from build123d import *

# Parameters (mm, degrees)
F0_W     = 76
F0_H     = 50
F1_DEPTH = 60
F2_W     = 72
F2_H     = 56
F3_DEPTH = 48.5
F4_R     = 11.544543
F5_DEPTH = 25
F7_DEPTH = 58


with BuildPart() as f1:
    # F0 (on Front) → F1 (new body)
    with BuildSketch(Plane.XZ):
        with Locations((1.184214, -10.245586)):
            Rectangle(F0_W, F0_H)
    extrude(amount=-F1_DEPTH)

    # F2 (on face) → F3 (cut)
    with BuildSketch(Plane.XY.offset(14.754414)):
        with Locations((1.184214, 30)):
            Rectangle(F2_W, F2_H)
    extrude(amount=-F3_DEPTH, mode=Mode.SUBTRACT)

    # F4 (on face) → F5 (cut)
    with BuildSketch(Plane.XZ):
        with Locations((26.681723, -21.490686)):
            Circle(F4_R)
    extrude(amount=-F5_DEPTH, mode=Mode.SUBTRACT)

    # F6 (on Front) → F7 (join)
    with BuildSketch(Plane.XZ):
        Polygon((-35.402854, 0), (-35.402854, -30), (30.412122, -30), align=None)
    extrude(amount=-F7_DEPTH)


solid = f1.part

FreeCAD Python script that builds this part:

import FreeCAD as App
import Part
import Sketcher
from FreeCAD import Vector


def add_polygon(sketch, points):
    """Adds a closed chain of lines whose ends are joined by coincident constraints."""
    first, n = sketch.GeometryCount, len(points)
    for a, b in zip(points, points[1:] + points[:1]):
        sketch.addGeometry(Part.LineSegment(App.Vector(*a, 0), App.Vector(*b, 0)), False)
    for i in range(n):
        sketch.addConstraint(Sketcher.Constraint("Coincident", first + i, 2, first + (i + 1) % n, 1))

doc = App.newDocument("Part")
params = doc.addObject("Spreadsheet::Sheet", "Params")
for row, (alias, value) in enumerate([
    ("sketch1_width", "76 mm"),
    ("sketch1_height", "50 mm"),
    ("pad1_length", "60 mm"),
    ("sketch2_width", "72 mm"),
    ("sketch2_height", "56 mm"),
    ("pocket1_length", "48.5 mm"),
    ("pocket2_length", "25 mm"),
    ("sketch4_height", "30 mm"),
    ("pad2_length", "58 mm"),
], start=1):
    params.set(f"A{row}", alias)
    params.set(f"B{row}", "=" + value)
    params.setAlias(f"B{row}", alias)

body = doc.addObject("PartDesign::Body", "Body")

# Sketch on XZ plane
sketch1 = body.newObject("Sketcher::SketchObject", "Sketch")
sketch1.AttachmentSupport = (doc.getObject("XZ_Plane"), [""])
sketch1.MapMode = "FlatFace"
add_polygon(sketch1, [(-36.815786, 14.754414), (-36.815786, -35.245586), (39.184214, -35.245586), (39.184214, 14.754414)])  # lines 0-3
sketch1.addConstraint(Sketcher.Constraint("Vertical", 0))
sketch1.addConstraint(Sketcher.Constraint("Horizontal", 1))
sketch1.addConstraint(Sketcher.Constraint("Vertical", 2))
sketch1.addConstraint(Sketcher.Constraint("Horizontal", 3))
sketch1.addConstraint(Sketcher.Constraint("DistanceX", 1, 1, 1, 2, 76.0))
sketch1.addConstraint(Sketcher.Constraint("DistanceY", 0, 2, 0, 1, 50.0))
sketch1.addConstraint(Sketcher.Constraint("DistanceX", 0, 2, -1, 1, 36.815786))
sketch1.addConstraint(Sketcher.Constraint("DistanceY", 0, 2, -1, 1, 35.245586))
sketch1.setExpression("Constraints[8]", "Params.sketch1_width")
sketch1.setExpression("Constraints[9]", "Params.sketch1_height")
pad1 = body.newObject("PartDesign::Pad", "Pad")
pad1.Profile = sketch1
pad1.setExpression("Length", "Params.pad1_length")
pad1.Reversed = True

# Sketch on XY plane
sketch2 = body.newObject("Sketcher::SketchObject", "Sketch001")
sketch2.AttachmentSupport = (doc.getObject("XY_Plane"), [""])
sketch2.MapMode = "FlatFace"
sketch2.AttachmentOffset = App.Placement(Vector(0, 0, 14.754414), App.Rotation())
add_polygon(sketch2, [(-34.815786, 58), (-34.815786, 2), (37.184214, 2), (37.184214, 58)])  # lines 0-3
sketch2.addConstraint(Sketcher.Constraint("Vertical", 0))
sketch2.addConstraint(Sketcher.Constraint("Horizontal", 1))
sketch2.addConstraint(Sketcher.Constraint("Vertical", 2))
sketch2.addConstraint(Sketcher.Constraint("Horizontal", 3))
sketch2.addConstraint(Sketcher.Constraint("DistanceX", 1, 1, 1, 2, 72.0))
sketch2.addConstraint(Sketcher.Constraint("DistanceY", 0, 2, 0, 1, 56.0))
sketch2.addConstraint(Sketcher.Constraint("DistanceY", -1, 1, 0, 2, 2.0))
sketch2.addConstraint(Sketcher.Constraint("DistanceX", 0, 2, -1, 1, 34.815786))
sketch2.setExpression("Constraints[8]", "Params.sketch2_width")
sketch2.setExpression("Constraints[9]", "Params.sketch2_height")
pocket1 = body.newObject("PartDesign::Pocket", "Pocket")
pocket1.Profile = sketch2
pocket1.setExpression("Length", "Params.pocket1_length")

# Sketch on XZ plane
sketch3 = body.newObject("Sketcher::SketchObject", "Sketch002")
sketch3.AttachmentSupport = (doc.getObject("XZ_Plane"), [""])
sketch3.MapMode = "FlatFace"
sketch3.addGeometry(Part.Circle(Vector(26.681723, -21.490686, 0), Vector(0, 0, 1), 11.544543), False)
sketch3.addConstraint(Sketcher.Constraint("Diameter", 0, 23.089086))
sketch3.addConstraint(Sketcher.Constraint("DistanceX", -1, 1, 0, 3, 26.681723))
sketch3.addConstraint(Sketcher.Constraint("DistanceY", 0, 3, -1, 1, 21.490686))
pocket2 = body.newObject("PartDesign::Pocket", "Pocket001")
pocket2.Profile = sketch3
pocket2.setExpression("Length", "Params.pocket2_length")

# Sketch on XZ plane
sketch4 = body.newObject("Sketcher::SketchObject", "Sketch003")
sketch4.AttachmentSupport = (doc.getObject("XZ_Plane"), [""])
sketch4.MapMode = "FlatFace"
add_polygon(sketch4, [(-35.402854, 0), (-35.402854, -30), (30.412122, -30)])  # lines 0-2
sketch4.addConstraint(Sketcher.Constraint("Vertical", 0))
sketch4.addConstraint(Sketcher.Constraint("Horizontal", 1))
sketch4.addConstraint(Sketcher.Constraint("PointOnObject", 2, 2, -1))
sketch4.addConstraint(Sketcher.Constraint("DistanceY", 0, 2, 0, 1, 30.0))
sketch4.addConstraint(Sketcher.Constraint("DistanceX", 1, 1, 1, 2, 65.814976))
sketch4.addConstraint(Sketcher.Constraint("DistanceX", -1, 1, 1, 2, 30.412122))
sketch4.setExpression("Constraints[6]", "Params.sketch4_height")
pad2 = body.newObject("PartDesign::Pad", "Pad001")
pad2.Profile = sketch4
pad2.setExpression("Length", "Params.pad2_length")
pad2.Reversed = True

doc.recompute()
